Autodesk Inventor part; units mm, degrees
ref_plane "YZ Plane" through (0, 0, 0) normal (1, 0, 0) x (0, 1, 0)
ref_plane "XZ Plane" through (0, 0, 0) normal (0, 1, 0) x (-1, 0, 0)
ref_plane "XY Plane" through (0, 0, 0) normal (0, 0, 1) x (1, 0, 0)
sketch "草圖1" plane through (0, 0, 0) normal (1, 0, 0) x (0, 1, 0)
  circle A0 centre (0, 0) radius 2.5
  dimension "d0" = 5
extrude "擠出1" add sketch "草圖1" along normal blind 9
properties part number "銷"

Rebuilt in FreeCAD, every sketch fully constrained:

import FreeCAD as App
import Part
import Sketcher

doc = App.newDocument("Part")
body = doc.addObject("PartDesign::Body", "Body")

sketch1 = body.newObject("Sketcher::SketchObject", "Sketch")
sketch1.AttachmentSupport = (doc.getObject("YZ_Plane"), [""])
sketch1.MapMode = "FlatFace"
sketch1.addGeometry(Part.Circle(App.Vector(0, 0, 0), App.Vector(0, 0, 1), 2.5), False)
sketch1.addConstraint(Sketcher.Constraint("Coincident", 0, 3, -1, 1))
sketch1.addConstraint(Sketcher.Constraint("Diameter", 0, 5.0))
pad1 = body.newObject("PartDesign::Pad", "Pad")
pad1.Profile = sketch1
pad1.Length = 9

doc.recompute()
